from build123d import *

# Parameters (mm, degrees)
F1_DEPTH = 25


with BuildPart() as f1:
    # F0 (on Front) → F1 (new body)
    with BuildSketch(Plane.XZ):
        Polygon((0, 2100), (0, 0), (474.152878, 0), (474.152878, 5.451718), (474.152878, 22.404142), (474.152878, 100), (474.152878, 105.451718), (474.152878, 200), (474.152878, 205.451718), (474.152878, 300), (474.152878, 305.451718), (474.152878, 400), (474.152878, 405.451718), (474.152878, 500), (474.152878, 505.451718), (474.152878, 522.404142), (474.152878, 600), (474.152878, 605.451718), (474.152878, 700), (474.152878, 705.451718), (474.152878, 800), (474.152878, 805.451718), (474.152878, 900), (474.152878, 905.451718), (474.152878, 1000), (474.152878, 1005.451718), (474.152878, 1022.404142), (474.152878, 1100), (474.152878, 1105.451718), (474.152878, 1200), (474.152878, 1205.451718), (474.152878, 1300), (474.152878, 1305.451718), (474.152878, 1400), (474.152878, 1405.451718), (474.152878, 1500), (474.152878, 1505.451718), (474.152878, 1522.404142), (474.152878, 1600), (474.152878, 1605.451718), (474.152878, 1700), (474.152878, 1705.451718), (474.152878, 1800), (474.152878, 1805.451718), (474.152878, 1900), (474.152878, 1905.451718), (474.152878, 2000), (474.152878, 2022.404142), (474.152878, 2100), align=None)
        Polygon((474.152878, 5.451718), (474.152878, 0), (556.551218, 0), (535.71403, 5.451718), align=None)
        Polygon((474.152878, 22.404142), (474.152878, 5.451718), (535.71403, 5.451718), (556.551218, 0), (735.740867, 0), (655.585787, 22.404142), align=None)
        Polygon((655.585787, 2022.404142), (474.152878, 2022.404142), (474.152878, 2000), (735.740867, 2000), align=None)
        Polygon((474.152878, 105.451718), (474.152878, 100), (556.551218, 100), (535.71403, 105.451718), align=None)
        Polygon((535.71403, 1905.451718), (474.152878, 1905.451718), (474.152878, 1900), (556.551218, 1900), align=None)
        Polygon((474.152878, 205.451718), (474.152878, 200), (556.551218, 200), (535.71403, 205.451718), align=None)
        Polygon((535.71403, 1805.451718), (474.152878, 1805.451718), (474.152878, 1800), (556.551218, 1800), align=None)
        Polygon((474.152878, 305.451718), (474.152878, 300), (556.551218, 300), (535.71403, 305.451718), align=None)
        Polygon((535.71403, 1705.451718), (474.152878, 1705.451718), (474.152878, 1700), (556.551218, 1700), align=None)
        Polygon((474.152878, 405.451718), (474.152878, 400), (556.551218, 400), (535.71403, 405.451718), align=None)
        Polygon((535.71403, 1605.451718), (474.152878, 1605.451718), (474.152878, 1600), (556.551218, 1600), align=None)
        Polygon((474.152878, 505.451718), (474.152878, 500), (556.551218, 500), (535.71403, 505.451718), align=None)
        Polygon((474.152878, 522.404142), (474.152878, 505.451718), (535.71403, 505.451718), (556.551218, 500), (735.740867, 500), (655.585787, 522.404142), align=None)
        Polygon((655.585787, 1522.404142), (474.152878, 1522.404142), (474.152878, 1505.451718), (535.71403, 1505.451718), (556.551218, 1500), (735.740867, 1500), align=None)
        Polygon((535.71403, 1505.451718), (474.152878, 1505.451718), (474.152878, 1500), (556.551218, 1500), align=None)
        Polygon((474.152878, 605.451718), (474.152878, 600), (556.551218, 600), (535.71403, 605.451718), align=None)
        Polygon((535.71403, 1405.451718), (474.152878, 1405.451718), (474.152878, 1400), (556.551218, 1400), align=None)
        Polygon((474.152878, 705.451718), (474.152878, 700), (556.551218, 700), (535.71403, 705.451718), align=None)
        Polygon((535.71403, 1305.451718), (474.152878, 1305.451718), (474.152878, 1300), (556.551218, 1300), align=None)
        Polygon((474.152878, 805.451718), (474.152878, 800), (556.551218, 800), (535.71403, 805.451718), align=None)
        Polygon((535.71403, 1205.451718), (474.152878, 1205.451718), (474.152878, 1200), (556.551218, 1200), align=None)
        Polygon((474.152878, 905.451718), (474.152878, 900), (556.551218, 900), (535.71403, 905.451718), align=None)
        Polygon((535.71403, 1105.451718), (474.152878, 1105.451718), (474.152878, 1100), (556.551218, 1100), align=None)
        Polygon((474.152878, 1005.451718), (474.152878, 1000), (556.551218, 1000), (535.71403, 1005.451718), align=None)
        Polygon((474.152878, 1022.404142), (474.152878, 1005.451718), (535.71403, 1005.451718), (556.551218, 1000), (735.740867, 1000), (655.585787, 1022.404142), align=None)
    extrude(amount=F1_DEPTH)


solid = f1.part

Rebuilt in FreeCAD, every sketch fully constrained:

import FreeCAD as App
import Part
import Sketcher

doc = App.newDocument("Part")
params = doc.addObject("Spreadsheet::Sheet", "Params")
for row, (alias, value) in enumerate([
    ("sketch1_height", "2100 mm"),
    ("pad1_length", "25 mm"),
], start=1):
    params.set(f"A{row}", alias)
    params.set(f"B{row}", "=" + value)
    params.setAlias(f"B{row}", alias)

body = doc.addObject("PartDesign::Body", "Body")

# Sketch on XZ plane
sketch1 = body.newObject("Sketcher::SketchObject", "Sketch")
sketch1.AttachmentSupport = (doc.getObject("XZ_Plane"), [""])
sketch1.MapMode = "FlatFace"
sketch1.addGeometry([
    Part.LineSegment(App.Vector(0, 2100, 0), App.Vector(0, 0, 0)),  # 0
    Part.LineSegment(App.Vector(0, 0, 0), App.Vector(735.740867, 0, 0)),  # 1
    Part.LineSegment(App.Vector(735.740867, 0, 0), App.Vector(655.585787, 22.404142, 0)),  # 2
    Part.LineSegment(App.Vector(655.585787, 22.404142, 0), App.Vector(474.152878, 22.404142, 0)),  # 3
    Part.LineSegment(App.Vector(474.152878, 22.404142, 0), App.Vector(474.152878, 100, 0)),  # 4
    Part.LineSegment(App.Vector(474.152878, 100, 0), App.Vector(556.551218, 100, 0)),  # 5
    Part.LineSegment(App.Vector(556.551218, 100, 0), App.Vector(535.71403, 105.451718, 0)),  # 6
    Part.LineSegment(App.Vector(535.71403, 105.451718, 0), App.Vector(474.152878, 105.451718, 0)),  # 7
    Part.LineSegment(App.Vector(474.152878, 105.451718, 0), App.Vector(474.152878, 200, 0)),  # 8
    Part.LineSegment(App.Vector(474.152878, 200, 0), App.Vector(556.551218, 200, 0)),  # 9
    Part.LineSegment(App.Vector(556.551218, 200, 0), App.Vector(535.71403, 205.451718, 0)),  # 10
    Part.LineSegment(App.Vector(535.71403, 205.451718, 0), App.Vector(474.152878, 205.451718, 0)),  # 11
    Part.LineSegment(App.Vector(474.152878, 205.451718, 0), App.Vector(474.152878, 300, 0)),  # 12
    Part.LineSegment(App.Vector(474.152878, 300, 0), App.Vector(556.551218, 300, 0)),  # 13
    Part.LineSegment(App.Vector(556.551218, 300, 0), App.Vector(535.71403, 305.451718, 0)),  # 14
    Part.LineSegment(App.Vector(535.71403, 305.451718, 0), App.Vector(474.152878, 305.451718, 0)),  # 15
    Part.LineSegment(App.Vector(474.152878, 305.451718, 0), App.Vector(474.152878, 400, 0)),  # 16
    Part.LineSegment(App.Vector(474.152878, 400, 0), App.Vector(556.551218, 400, 0)),  # 17
    Part.LineSegment(App.Vector(556.551218, 400, 0), App.Vector(535.71403, 405.451718, 0)),  # 18
    Part.LineSegment(App.Vector(535.71403, 405.451718, 0), App.Vector(474.152878, 405.451718, 0)),  # 19
    Part.LineSegment(App.Vector(474.152878, 405.451718, 0), App.Vector(474.152878, 500, 0)),  # 20
    Part.LineSegment(App.Vector(474.152878, 500, 0), App.Vector(735.740867, 500, 0)),  # 21
    Part.LineSegment(App.Vector(735.740867, 500, 0), App.Vector(655.585787, 522.404142, 0)),  # 22
    Part.LineSegment(App.Vector(655.585787, 522.404142, 0), App.Vector(474.152878, 522.404142, 0)),  # 23
    Part.LineSegment(App.Vector(474.152878, 522.404142, 0), App.Vector(474.152878, 600, 0)),  # 24
    Part.LineSegment(App.Vector(474.152878, 600, 0), App.Vector(556.551218, 600, 0)),  # 25
    Part.LineSegment(App.Vector(556.551218, 600, 0), App.Vector(535.71403, 605.451718, 0)),  # 26
    Part.LineSegment(App.Vector(535.71403, 605.451718, 0), App.Vector(474.152878, 605.451718, 0)),  # 27
    Part.LineSegment(App.Vector(474.152878, 605.451718, 0), App.Vector(474.152878, 700, 0)),  # 28
    Part.LineSegment(App.Vector(474.152878, 700, 0), App.Vector(556.551218, 700, 0)),  # 29
    Part.LineSegment(App.Vector(556.551218, 700, 0), App.Vector(535.71403, 705.451718, 0)),  # 30
    Part.LineSegment(App.Vector(535.71403, 705.451718, 0), App.Vector(474.152878, 705.451718, 0)),  # 31
    Part.LineSegment(App.Vector(474.152878, 705.451718, 0), App.Vector(474.152878, 800, 0)),  # 32
    Part.LineSegment(App.Vector(474.152878, 800, 0), App.Vector(556.551218, 800, 0)),  # 33
    Part.LineSegment(App.Vector(556.551218, 800, 0), App.Vector(535.71403, 805.451718, 0)),  # 34
    Part.LineSegment(App.Vector(535.71403, 805.451718, 0), App.Vector(474.152878, 805.451718, 0)),  # 35
    Part.LineSegment(App.Vector(474.152878, 805.451718, 0), App.Vector(474.152878, 900, 0)),  # 36
    Part.LineSegment(App.Vector(474.152878, 900, 0), App.Vector(556.551218, 900, 0)),  # 37
    Part.LineSegment(App.Vector(556.551218, 900, 0), App.Vector(535.71403, 905.451718, 0)),  # 38
    Part.LineSegment(App.Vector(535.71403, 905.451718, 0), App.Vector(474.152878, 905.451718, 0)),  # 39
    Part.LineSegment(App.Vector(474.152878, 905.451718, 0), App.Vector(474.152878, 1000, 0)),  # 40
    Part.LineSegment(App.Vector(474.152878, 1000, 0), App.Vector(735.740867, 1000, 0)),  # 41
    Part.LineSegment(App.Vector(735.740867, 1000, 0), App.Vector(655.585787, 1022.404142, 0)),  # 42
    Part.LineSegment(App.Vector(655.585787, 1022.404142, 0), App.Vector(474.152878, 1022.404142, 0)),  # 43
    Part.LineSegment(App.Vector(474.152878, 1022.404142, 0), App.Vector(474.152878, 1100, 0)),  # 44
    Part.LineSegment(App.Vector(474.152878, 1100, 0), App.Vector(556.551218, 1100, 0)),  # 45
    Part.LineSegment(App.Vector(556.551218, 1100, 0), App.Vector(535.71403, 1105.451718, 0)),  # 46
    Part.LineSegment(App.Vector(535.71403, 1105.451718, 0), App.Vector(474.152878, 1105.451718, 0)),  # 47
    Part.LineSegment(App.Vector(474.152878, 1105.451718, 0), App.Vector(474.152878, 1200, 0)),  # 48
    Part.LineSegment(App.Vector(474.152878, 1200, 0), App.Vector(556.551218, 1200, 0)),  # 49
    Part.LineSegment(App.Vector(556.551218, 1200, 0), App.Vector(535.71403, 1205.451718, 0)),  # 50
    Part.LineSegment(App.Vector(535.71403, 1205.451718, 0), App.Vector(474.152878, 1205.451718, 0)),  # 51
    Part.LineSegment(App.Vector(474.152878, 1205.451718, 0), App.Vector(474.152878, 1300, 0)),  # 52
    Part.LineSegment(App.Vector(474.152878, 1300, 0), App.Vector(556.551218, 1300, 0)),  # 53
    Part.LineSegment(App.Vector(556.551218, 1300, 0), App.Vector(535.71403, 1305.451718, 0)),  # 54
    Part.LineSegment(App.Vector(535.71403, 1305.451718, 0), App.Vector(474.152878, 1305.451718, 0)),  # 55
    Part.LineSegment(App.Vector(474.152878, 1305.451718, 0), App.Vector(474.152878, 1400, 0)),  # 56
    Part.LineSegment(App.Vector(474.152878, 1400, 0), App.Vector(556.551218, 1400, 0)),  # 57
    Part.LineSegment(App.Vector(556.551218, 1400, 0), App.Vector(535.71403, 1405.451718, 0)),  # 58
    Part.LineSegment(App.Vector(535.71403, 1405.451718, 0), App.Vector(474.152878, 1405.451718, 0)),  # 59
    Part.LineSegment(App.Vector(474.152878, 1405.451718, 0), App.Vector(474.152878, 1500, 0)),  # 60
    Part.LineSegment(App.Vector(474.152878, 1500, 0), App.Vector(735.740867, 1500, 0)),  # 61
    Part.LineSegment(App.Vector(735.740867, 1500, 0), App.Vector(655.585787, 1522.404142, 0)),  # 62
    Part.LineSegment(App.Vector(655.585787, 1522.404142, 0), App.Vector(474.152878, 1522.404142, 0)),  # 63
    Part.LineSegment(App.Vector(474.152878, 1522.404142, 0), App.Vector(474.152878, 1600, 0)),  # 64
    Part.LineSegment(App.Vector(474.152878, 1600, 0), App.Vector(556.551218, 1600, 0)),  # 65
    Part.LineSegment(App.Vector(556.551218, 1600, 0), App.Vector(535.71403, 1605.451718, 0)),  # 66
    Part.LineSegment(App.Vector(535.71403, 1605.451718, 0), App.Vector(474.152878, 1605.451718, 0)),  # 67
    Part.LineSegment(App.Vector(474.152878, 1605.451718, 0), App.Vector(474.152878, 1700, 0)),  # 68
    Part.LineSegment(App.Vector(474.152878, 1700, 0), App.Vector(556.551218, 1700, 0)),  # 69
    Part.LineSegment(App.Vector(556.551218, 1700, 0), App.Vector(535.71403, 1705.451718, 0)),  # 70
    Part.LineSegment(App.Vector(535.71403, 1705.451718, 0), App.Vector(474.152878, 1705.451718, 0)),  # 71
    Part.LineSegment(App.Vector(474.152878, 1705.451718, 0), App.Vector(474.152878, 1800, 0)),  # 72
    Part.LineSegment(App.Vector(474.152878, 1800, 0), App.Vector(556.551218, 1800, 0)),  # 73
    Part.LineSegment(App.Vector(556.551218, 1800, 0), App.Vector(535.71403, 1805.451718, 0)),  # 74
    Part.LineSegment(App.Vector(535.71403, 1805.451718, 0), App.Vector(474.152878, 1805.451718, 0)),  # 75
    Part.LineSegment(App.Vector(474.152878, 1805.451718, 0), App.Vector(474.152878, 1900, 0)),  # 76
    Part.LineSegment(App.Vector(474.152878, 1900, 0), App.Vector(556.551218, 1900, 0)),  # 77
    Part.LineSegment(App.Vector(556.551218, 1900, 0), App.Vector(535.71403, 1905.451718, 0)),  # 78
    Part.LineSegment(App.Vector(535.71403, 1905.451718, 0), App.Vector(474.152878, 1905.451718, 0)),  # 79
    Part.LineSegment(App.Vector(474.152878, 1905.451718, 0), App.Vector(474.152878, 2000, 0)),  # 80
    Part.LineSegment(App.Vector(474.152878, 2000, 0), App.Vector(735.740867, 2000, 0)),  # 81
    Part.LineSegment(App.Vector(735.740867, 2000, 0), App.Vector(655.585787, 2022.404142, 0)),  # 82
    Part.LineSegment(App.Vector(655.585787, 2022.404142, 0), App.Vector(474.152878, 2022.404142, 0)),  # 83
    Part.LineSegment(App.Vector(474.152878, 2022.404142, 0), App.Vector(474.152878, 2100, 0)),  # 84
    Part.LineSegment(App.Vector(474.152878, 2100, 0), App.Vector(0, 2100, 0)),  # 85
], False)
sketch1.addConstraint([
    Sketcher.Constraint("Coincident", 0, 2, 1, 1),
    Sketcher.Constraint("Coincident", 1, 2, 2, 1),
    Sketcher.Constraint("Coincident", 2, 2, 3, 1),
    Sketcher.Constraint("Coincident", 3, 2, 4, 1),
    Sketcher.Constraint("Coincident", 4, 2, 5, 1),
    Sketcher.Constraint("Coincident", 5, 2, 6, 1),
    Sketcher.Constraint("Coincident", 6, 2, 7, 1),
    Sketcher.Constraint("Coincident", 7, 2, 8, 1),
    Sketcher.Constraint("Coincident", 8, 2, 9, 1),
    Sketcher.Constraint("Coincident", 9, 2, 10, 1),
    Sketcher.Constraint("Coincident", 10, 2, 11, 1),
    Sketcher.Constraint("Coincident", 11, 2, 12, 1),
    Sketcher.Constraint("Coincident", 12, 2, 13, 1),
    Sketcher.Constraint("Coincident", 13, 2, 14, 1),
    Sketcher.Constraint("Coincident", 14, 2, 15, 1),
    Sketcher.Constraint("Coincident", 15, 2, 16, 1),
    Sketcher.Constraint("Coincident", 16, 2, 17, 1),
    Sketcher.Constraint("Coincident", 17, 2, 18, 1),
    Sketcher.Constraint("Coincident", 18, 2, 19, 1),
    Sketcher.Constraint("Coincident", 19, 2, 20, 1),
    Sketcher.Constraint("Coincident", 20, 2, 21, 1),
    Sketcher.Constraint("Coincident", 21, 2, 22, 1),
    Sketcher.Constraint("Coincident", 22, 2, 23, 1),
    Sketcher.Constraint("Coincident", 23, 2, 24, 1),
    Sketcher.Constraint("Coincident", 24, 2, 25, 1),
    Sketcher.Constraint("Coincident", 25, 2, 26, 1),
    Sketcher.Constraint("Coincident", 26, 2, 27, 1),
    Sketcher.Constraint("Coincident", 27, 2, 28, 1),
    Sketcher.Constraint("Coincident", 28, 2, 29, 1),
    Sketcher.Constraint("Coincident", 29, 2, 30, 1),
    Sketcher.Constraint("Coincident", 30, 2, 31, 1),
    Sketcher.Constraint("Coincident", 31, 2, 32, 1),
    Sketcher.Constraint("Coincident", 32, 2, 33, 1),
    Sketcher.Constraint("Coincident", 33, 2, 34, 1),
    Sketcher.Constraint("Coincident", 34, 2, 35, 1),
    Sketcher.Constraint("Coincident", 35, 2, 36, 1),
    Sketcher.Constraint("Coincident", 36, 2, 37, 1),
    Sketcher.Constraint("Coincident", 37, 2, 38, 1),
    Sketcher.Constraint("Coincident", 38, 2, 39, 1),
    Sketcher.Constraint("Coincident", 39, 2, 40, 1),
    Sketcher.Constraint("Coincident", 40, 2, 41, 1),
    Sketcher.Constraint("Coincident", 41, 2, 42, 1),
    Sketcher.Constraint("Coincident", 42, 2, 43, 1),
    Sketcher.Constraint("Coincident", 43, 2, 44, 1),
    Sketcher.Constraint("Coincident", 44, 2, 45, 1),
    Sketcher.Constraint("Coincident", 45, 2, 46, 1),
    Sketcher.Constraint("Coincident", 46, 2, 47, 1),
    Sketcher.Constraint("Coincident", 47, 2, 48, 1),
    Sketcher.Constraint("Coincident", 48, 2, 49, 1),
    Sketcher.Constraint("Coincident", 49, 2, 50, 1),
    Sketcher.Constraint("Coincident", 50, 2, 51, 1),
    Sketcher.Constraint("Coincident", 51, 2, 52, 1),
    Sketcher.Constraint("Coincident", 52, 2, 53, 1),
    Sketcher.Constraint("Coincident", 53, 2, 54, 1),
    Sketcher.Constraint("Coincident", 54, 2, 55, 1),
    Sketcher.Constraint("Coincident", 55, 2, 56, 1),
    Sketcher.Constraint("Coincident", 56, 2, 57, 1),
    Sketcher.Constraint("Coincident", 57, 2, 58, 1),
    Sketcher.Constraint("Coincident", 58, 2, 59, 1),
    Sketcher.Constraint("Coincident", 59, 2, 60, 1),
    Sketcher.Constraint("Coincident", 60, 2, 61, 1),
    Sketcher.Constraint("Coincident", 61, 2, 62, 1),
    Sketcher.Constraint("Coincident", 62, 2, 63, 1),
    Sketcher.Constraint("Coincident", 63, 2, 64, 1),
    Sketcher.Constraint("Coincident", 64, 2, 65, 1),
    Sketcher.Constraint("Coincident", 65, 2, 66, 1),
    Sketcher.Constraint("Coincident", 66, 2, 67, 1),
    Sketcher.Constraint("Coincident", 67, 2, 68, 1),
    Sketcher.Constraint("Coincident", 68, 2, 69, 1),
    Sketcher.Constraint("Coincident", 69, 2, 70, 1),
    Sketcher.Constraint("Coincident", 70, 2, 71, 1),
    Sketcher.Constraint("Coincident", 71, 2, 72, 1),
    Sketcher.Constraint("Coincident", 72, 2, 73, 1),
    Sketcher.Constraint("Coincident", 73, 2, 74, 1),
    Sketcher.Constraint("Coincident", 74, 2, 75, 1),
    Sketcher.Constraint("Coincident", 75, 2, 76, 1),
    Sketcher.Constraint("Coincident", 76, 2, 77, 1),
    Sketcher.Constraint("Coincident", 77, 2, 78, 1),
    Sketcher.Constraint("Coincident", 78, 2, 79, 1),
    Sketcher.Constraint("Coincident", 79, 2, 80, 1),
    Sketcher.Constraint("Coincident", 80, 2, 81, 1),
    Sketcher.Constraint("Coincident", 81, 2, 82, 1),
    Sketcher.Constraint("Coincident", 82, 2, 83, 1),
    Sketcher.Constraint("Coincident", 83, 2, 84, 1),
    Sketcher.Constraint("Coincident", 84, 2, 85, 1),
    Sketcher.Constraint("Coincident", 85, 2, 0, 1),
    Sketcher.Constraint("Vertical", 0),
    Sketcher.Constraint("Horizontal", 1),
    Sketcher.Constraint("Horizontal", 3),
    Sketcher.Constraint("Vertical", 4),
    Sketcher.Constraint("Horizontal", 5),
    Sketcher.Constraint("Horizontal", 7),
    Sketcher.Constraint("Vertical", 8),
    Sketcher.Constraint("Horizontal", 9),
    Sketcher.Constraint("Horizontal", 11),
    Sketcher.Constraint("Vertical", 12),
    Sketcher.Constraint("Horizontal", 13),
    Sketcher.Constraint("Horizontal", 15),
    Sketcher.Constraint("Vertical", 16),
    Sketcher.Constraint("Horizontal", 17),
    Sketcher.Constraint("Horizontal", 19),
    Sketcher.Constraint("Vertical", 20),
    Sketcher.Constraint("Horizontal", 21),
    Sketcher.Constraint("Horizontal", 23),
    Sketcher.Constraint("Vertical", 24),
    Sketcher.Constraint("Horizontal", 25),
    Sketcher.Constraint("Horizontal", 27),
    Sketcher.Constraint("Vertical", 28),
    Sketcher.Constraint("Horizontal", 29),
    Sketcher.Constraint("Horizontal", 31),
    Sketcher.Constraint("Vertical", 32),
    Sketcher.Constraint("Horizontal", 33),
    Sketcher.Constraint("Horizontal", 35),
    Sketcher.Constraint("Vertical", 36),
    Sketcher.Constraint("Horizontal", 37),
    Sketcher.Constraint("Horizontal", 39),
    Sketcher.Constraint("Vertical", 40),
    Sketcher.Constraint("Horizontal", 41),
    Sketcher.Constraint("Horizontal", 43),
    Sketcher.Constraint("Vertical", 44),
    Sketcher.Constraint("Horizontal", 45),
    Sketcher.Constraint("Horizontal", 47),
    Sketcher.Constraint("Vertical", 48),
    Sketcher.Constraint("Horizontal", 49),
    Sketcher.Constraint("Horizontal", 51),
    Sketcher.Constraint("Vertical", 52),
    Sketcher.Constraint("Horizontal", 53),
    Sketcher.Constraint("Horizontal", 55),
    Sketcher.Constraint("Vertical", 56),
    Sketcher.Constraint("Horizontal", 57),
    Sketcher.Constraint("Horizontal", 59),
    Sketcher.Constraint("Vertical", 60),
    Sketcher.Constraint("Horizontal", 61),
    Sketcher.Constraint("Horizontal", 63),
    Sketcher.Constraint("Vertical", 64),
    Sketcher.Constraint("Horizontal", 65),
    Sketcher.Constraint("Horizontal", 67),
    Sketcher.Constraint("Vertical", 68),
    Sketcher.Constraint("Horizontal", 69),
    Sketcher.Constraint("Horizontal", 71),
    Sketcher.Constraint("Vertical", 72),
    Sketcher.Constraint("Horizontal", 73),
    Sketcher.Constraint("Horizontal", 75),
    Sketcher.Constraint("Vertical", 76),
    Sketcher.Constraint("Horizontal", 77),
    Sketcher.Constraint("Horizontal", 79),
    Sketcher.Constraint("Vertical", 80),
    Sketcher.Constraint("Horizontal", 81),
    Sketcher.Constraint("Horizontal", 83),
    Sketcher.Constraint("Vertical", 84),
    Sketcher.Constraint("Horizontal", 85),
    Sketcher.Constraint("Coincident", 0, 2, -1, 1),
    Sketcher.Constraint("Parallel", 6, 10),
    Sketcher.Constraint("Parallel", 10, 14),
    Sketcher.Constraint("Parallel", 14, 18),
    Sketcher.Constraint("Parallel", 2, 22),
    Sketcher.Constraint("Parallel", 18, 26),
    Sketcher.Constraint("Parallel", 26, 30),
    Sketcher.Constraint("Parallel", 30, 34),
    Sketcher.Constraint("Parallel", 34, 38),
    Sketcher.Constraint("Parallel", 22, 42),
    Sketcher.Constraint("Parallel", 38, 46),
    Sketcher.Constraint("Parallel", 46, 50),
    Sketcher.Constraint("Parallel", 50, 54),
    Sketcher.Constraint("Parallel", 54, 58),
    Sketcher.Constraint("Parallel", 42, 62),
    Sketcher.Constraint("Parallel", 58, 66),
    Sketcher.Constraint("Parallel", 66, 70),
    Sketcher.Constraint("Parallel", 70, 74),
    Sketcher.Constraint("Parallel", 74, 78),
    Sketcher.Constraint("Parallel", 62, 82),
    Sketcher.Constraint("Vertical", 4, 2, 7, 2),
    Sketcher.Constraint("Vertical", 5, 2, 9, 2),
    Sketcher.Constraint("Vertical", 6, 2, 10, 2),
    Sketcher.Constraint("Vertical", 8, 2, 11, 2),
    Sketcher.Constraint("Vertical", 9, 2, 13, 2),
    Sketcher.Constraint("Vertical", 10, 2, 14, 2),
    Sketcher.Constraint("Vertical", 12, 2, 15, 2),
    Sketcher.Constraint("Vertical", 13, 2, 17, 2),
    Sketcher.Constraint("Vertical", 14, 2, 18, 2),
    Sketcher.Constraint("Vertical", 16, 2, 19, 2),
    Sketcher.Constraint("Vertical", 1, 2, 21, 2),
    Sketcher.Constraint("Vertical", 2, 2, 22, 2),
    Sketcher.Constraint("Vertical", 20, 2, 23, 2),
    Sketcher.Constraint("Vertical", 17, 2, 25, 2),
    Sketcher.Constraint("Vertical", 18, 2, 26, 2),
    Sketcher.Constraint("Vertical", 24, 2, 27, 2),
    Sketcher.Constraint("Vertical", 25, 2, 29, 2),
    Sketcher.Constraint("Vertical", 26, 2, 30, 2),
    Sketcher.Constraint("Vertical", 28, 2, 31, 2),
    Sketcher.Constraint("Vertical", 29, 2, 33, 2),
    Sketcher.Constraint("Vertical", 30, 2, 34, 2),
    Sketcher.Constraint("Vertical", 32, 2, 35, 2),
    Sketcher.Constraint("Vertical", 33, 2, 37, 2),
    Sketcher.Constraint("Vertical", 34, 2, 38, 2),
    Sketcher.Constraint("Vertical", 36, 2, 39, 2),
    Sketcher.Constraint("Vertical", 21, 2, 41, 2),
    Sketcher.Constraint("Vertical", 22, 2, 42, 2),
    Sketcher.Constraint("Vertical", 40, 2, 43, 2),
    Sketcher.Constraint("Vertical", 37, 2, 45, 2),
    Sketcher.Constraint("Vertical", 38, 2, 46, 2),
    Sketcher.Constraint("Vertical", 44, 2, 47, 2),
    Sketcher.Constraint("Vertical", 45, 2, 49, 2),
    Sketcher.Constraint("Vertical", 46, 2, 50, 2),
    Sketcher.Constraint("Vertical", 48, 2, 51, 2),
    Sketcher.Constraint("Vertical", 49, 2, 53, 2),
    Sketcher.Constraint("Vertical", 50, 2, 54, 2),
    Sketcher.Constraint("Vertical", 52, 2, 55, 2),
    Sketcher.Constraint("Vertical", 53, 2, 57, 2),
    Sketcher.Constraint("Vertical", 54, 2, 58, 2),
    Sketcher.Constraint("Vertical", 56, 2, 59, 2),
    Sketcher.Constraint("Vertical", 41, 2, 61, 2),
    Sketcher.Constraint("Vertical", 42, 2, 62, 2),
    Sketcher.Constraint("Vertical", 60, 2, 63, 2),
    Sketcher.Constraint("Vertical", 57, 2, 65, 2),
    Sketcher.Constraint("Vertical", 58, 2, 66, 2),
    Sketcher.Constraint("Vertical", 64, 2, 67, 2),
    Sketcher.Constraint("Vertical", 65, 2, 69, 2),
    Sketcher.Constraint("Vertical", 66, 2, 70, 2),
    Sketcher.Constraint("Vertical", 68, 2, 71, 2),
    Sketcher.Constraint("Vertical", 69, 2, 73, 2),
    Sketcher.Constraint("Vertical", 70, 2, 74, 2),
    Sketcher.Constraint("Vertical", 72, 2, 75, 2),
    Sketcher.Constraint("Vertical", 73, 2, 77, 2),
    Sketcher.Constraint("Vertical", 74, 2, 78, 2),
    Sketcher.Constraint("Vertical", 76, 2, 79, 2),
    Sketcher.Constraint("Vertical", 61, 2, 81, 2),
    Sketcher.Constraint("Vertical", 62, 2, 82, 2),
    Sketcher.Constraint("Vertical", 80, 2, 83, 2),
    Sketcher.Constraint("Equal", 8, 12),
    Sketcher.Constraint("Equal", 12, 16),
    Sketcher.Constraint("Equal", 16, 20),
    Sketcher.Constraint("Equal", 4, 24),
    Sketcher.Constraint("Equal", 20, 28),
    Sketcher.Constraint("Equal", 28, 32),
    Sketcher.Constraint("Equal", 32, 36),
    Sketcher.Constraint("Equal", 36, 40),
    Sketcher.Constraint("Equal", 24, 44),
    Sketcher.Constraint("Equal", 40, 48),
    Sketcher.Constraint("Equal", 48, 52),
    Sketcher.Constraint("Equal", 52, 56),
    Sketcher.Constraint("Equal", 56, 60),
    Sketcher.Constraint("Equal", 44, 64),
    Sketcher.Constraint("Equal", 60, 68),
    Sketcher.Constraint("Equal", 68, 72),
    Sketcher.Constraint("Equal", 72, 76),
    Sketcher.Constraint("Equal", 76, 80),
    Sketcher.Constraint("Equal", 64, 84),
    Sketcher.Constraint("DistanceY", 0, 2, 0, 1, 2100.0),
    Sketcher.Constraint("DistanceY", -1, 1, 4, 2, 100.0),
    Sketcher.Constraint("DistanceX", 3, 2, 3, 1, 181.432909),
    Sketcher.Constraint("DistanceX", 5, 1, 5, 2, 82.39834),
    Sketcher.Constraint("DistanceX", 7, 2, 7, 1, 61.561152),
    Sketcher.Constraint("DistanceX", 21, 1, 21, 2, 261.587989),
    Sketcher.Constraint("DistanceX", 85, 2, 85, 1, 474.152878),
    Sketcher.Constraint("DistanceY", 8, 1, 8, 2, 94.548282),
    Sketcher.Constraint("DistanceY", 24, 1, 24, 2, 77.595858),
])
sketch1.setExpression("Constraints[248]", "Params.sketch1_height")
pad1 = body.newObject("PartDesign::Pad", "Pad")
pad1.Profile = sketch1
pad1.setExpression("Length", "Params.pad1_length")

doc.recompute()
